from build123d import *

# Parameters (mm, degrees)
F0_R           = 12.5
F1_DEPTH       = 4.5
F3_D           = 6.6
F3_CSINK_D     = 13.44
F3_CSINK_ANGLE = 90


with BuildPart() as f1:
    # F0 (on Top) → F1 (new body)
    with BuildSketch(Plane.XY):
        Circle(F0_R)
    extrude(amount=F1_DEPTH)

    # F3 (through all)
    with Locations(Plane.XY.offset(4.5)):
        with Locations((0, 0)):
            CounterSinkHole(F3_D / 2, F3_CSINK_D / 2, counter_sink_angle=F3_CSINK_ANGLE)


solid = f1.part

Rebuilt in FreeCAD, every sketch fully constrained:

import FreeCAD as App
import Part
import Sketcher
from FreeCAD import Vector
Q = App.Units.Quantity

doc = App.newDocument("Part")
params = doc.addObject("Spreadsheet::Sheet", "Params")
for row, (alias, value) in enumerate([
    ("sketch1_diameter", "25 mm"),
    ("pad1_length", "4.5 mm"),
    ("sketch2_diameter", "6.6 mm"),
    ("hole_diameter", "6.6 mm"),
    ("hole_csink_diameter", "13.44 mm"),
], start=1):
    params.set(f"A{row}", alias)
    params.set(f"B{row}", "=" + value)
    params.setAlias(f"B{row}", alias)

body = doc.addObject("PartDesign::Body", "Body")

# Sketch on XY plane
sketch1 = body.newObject("Sketcher::SketchObject", "Sketch")
sketch1.AttachmentSupport = (doc.getObject("XY_Plane"), [""])
sketch1.MapMode = "FlatFace"
sketch1.addGeometry(Part.Circle(Vector(0, 0, 0), Vector(0, 0, 1), 12), False)
sketch1.addConstraint([
    Sketcher.Constraint("Coincident", 0, 3, -1, 1),
    Sketcher.Constraint("Diameter", 0, Q("25 mm")),
])
sketch1.setExpression("Constraints[1]", "Params.sketch1_diameter")
pad1 = body.newObject("PartDesign::Pad", "Pad")
pad1.Profile = sketch1
pad1.setExpression("Length", "Params.pad1_length")

# Sketch on XY plane
sketch2 = body.newObject("Sketcher::SketchObject", "Sketch001")
sketch2.AttachmentSupport = (doc.getObject("XY_Plane"), [""])
sketch2.MapMode = "FlatFace"
sketch2.AttachmentOffset = App.Placement(Vector(0, 0, 4.5), App.Rotation())
sketch2.addGeometry(Part.Circle(Vector(0, 0, 0), Vector(0, 0, 1), 3.3), False)
sketch2.addConstraint([
    Sketcher.Constraint("Coincident", 0, 3, -1, 1),
    Sketcher.Constraint("Diameter", 0, Q("6.6 mm")),
])
sketch2.setExpression("Constraints[1]", "Params.sketch2_diameter")
doc.recompute()
hole = body.newObject("PartDesign::Hole", "Hole")
hole.Profile = sketch2
hole.ThreadType = "None"
hole.setExpression("Diameter", "Params.hole_diameter")
hole.DepthType = "ThroughAll"
hole.HoleCutType = "Countersink"
hole.setExpression("HoleCutDiameter", "Params.hole_csink_diameter")
hole.HoleCutCountersinkAngle = 90

doc.recompute()
